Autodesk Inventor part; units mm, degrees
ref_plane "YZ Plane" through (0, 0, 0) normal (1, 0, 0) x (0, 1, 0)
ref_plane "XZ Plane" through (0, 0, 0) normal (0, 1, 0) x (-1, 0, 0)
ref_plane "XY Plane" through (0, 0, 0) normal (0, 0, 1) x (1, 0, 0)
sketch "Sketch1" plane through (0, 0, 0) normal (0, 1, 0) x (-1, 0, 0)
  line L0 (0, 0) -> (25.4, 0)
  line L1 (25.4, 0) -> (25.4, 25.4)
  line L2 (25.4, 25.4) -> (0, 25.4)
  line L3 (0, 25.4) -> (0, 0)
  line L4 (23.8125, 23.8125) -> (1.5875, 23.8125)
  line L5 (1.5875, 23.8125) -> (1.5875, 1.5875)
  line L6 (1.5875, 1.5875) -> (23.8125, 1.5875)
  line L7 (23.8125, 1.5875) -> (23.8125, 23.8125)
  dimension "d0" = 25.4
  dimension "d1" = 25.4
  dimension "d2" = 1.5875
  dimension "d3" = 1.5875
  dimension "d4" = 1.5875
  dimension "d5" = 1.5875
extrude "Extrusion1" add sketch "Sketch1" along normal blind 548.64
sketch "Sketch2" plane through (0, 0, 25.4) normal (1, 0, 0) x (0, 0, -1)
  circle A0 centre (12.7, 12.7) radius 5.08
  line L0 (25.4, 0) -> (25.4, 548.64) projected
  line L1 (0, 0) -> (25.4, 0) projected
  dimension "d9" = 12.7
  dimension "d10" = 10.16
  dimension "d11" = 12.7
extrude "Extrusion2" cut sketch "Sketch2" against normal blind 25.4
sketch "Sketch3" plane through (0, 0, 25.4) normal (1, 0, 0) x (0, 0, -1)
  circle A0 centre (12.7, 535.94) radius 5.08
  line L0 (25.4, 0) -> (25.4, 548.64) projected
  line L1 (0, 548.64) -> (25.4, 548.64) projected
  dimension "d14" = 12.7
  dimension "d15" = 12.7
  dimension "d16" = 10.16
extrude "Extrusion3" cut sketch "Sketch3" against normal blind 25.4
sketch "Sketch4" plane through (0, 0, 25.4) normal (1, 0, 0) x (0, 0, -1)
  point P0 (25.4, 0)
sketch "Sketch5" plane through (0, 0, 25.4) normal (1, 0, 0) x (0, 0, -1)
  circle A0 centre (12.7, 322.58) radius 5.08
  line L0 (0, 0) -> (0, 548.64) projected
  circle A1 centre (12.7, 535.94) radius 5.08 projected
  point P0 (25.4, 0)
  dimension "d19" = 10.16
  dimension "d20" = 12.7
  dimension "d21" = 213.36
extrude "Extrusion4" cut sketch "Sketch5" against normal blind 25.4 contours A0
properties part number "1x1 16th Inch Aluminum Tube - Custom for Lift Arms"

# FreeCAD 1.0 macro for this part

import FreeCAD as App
import Part
import Sketcher
Q = App.Units.Quantity


def add_polygon(sketch, points):
    """Adds a closed chain of lines whose ends are joined by coincident constraints."""
    first, n = sketch.GeometryCount, len(points)
    for a, b in zip(points, points[1:] + points[:1]):
        sketch.addGeometry(Part.LineSegment(App.Vector(*a, 0), App.Vector(*b, 0)), False)
    for i in range(n):
        sketch.addConstraint(Sketcher.Constraint("Coincident", first + i, 2, first + (i + 1) % n, 1))

doc = App.newDocument("Part")
body = doc.addObject("PartDesign::Body", "Body")

# Sketch on XZ plane
sketch1 = body.newObject("Sketcher::SketchObject", "Sketch")
sketch1.AttachmentSupport = (doc.getObject("XZ_Plane"), [""])
sketch1.MapMode = "FlatFace"
add_polygon(sketch1, [(0, 25), (0, 0), (-25, 0), (-25, 25)])  # lines 0-3
add_polygon(sketch1, [(-2, 24), (-24, 24), (-24, 2), (-2, 2)])  # lines 4-7
sketch1.addConstraint(Sketcher.Constraint("Vertical", 0))
sketch1.addConstraint(Sketcher.Constraint("Horizontal", 1))
sketch1.addConstraint(Sketcher.Constraint("Vertical", 2))
sketch1.addConstraint(Sketcher.Constraint("Horizontal", 3))
sketch1.addConstraint(Sketcher.Constraint("Horizontal", 4))
sketch1.addConstraint(Sketcher.Constraint("Vertical", 5))
sketch1.addConstraint(Sketcher.Constraint("Horizontal", 6))
sketch1.addConstraint(Sketcher.Constraint("Vertical", 7))
sketch1.addConstraint(Sketcher.Constraint("Coincident", 0, 2, -1, 1))
sketch1.addConstraint(Sketcher.Constraint("Equal", 3, 0))
sketch1.addConstraint(Sketcher.Constraint("Equal", 6, 5))
sketch1.addConstraint(Sketcher.Constraint("DistanceX", 1, 2, 1, 1, Q("1 in")))
sketch1.addConstraint(Sketcher.Constraint("DistanceY", -1, 1, 5, 2, Q("0.0625 in")))
sketch1.addConstraint(Sketcher.Constraint("DistanceX", 6, 2, -1, 1, Q("0.0625 in")))
sketch1.addConstraint(Sketcher.Constraint("DistanceX", 2, 2, 4, 2, Q("0.0625 in")))
pad1 = body.newObject("PartDesign::Pad", "Pad")
pad1.Profile = sketch1
pad1.Length = Q("21.6 in")
pad1.Reversed = True

# Sketch on YZ plane
sketch2 = body.newObject("Sketcher::SketchObject", "Sketch001")
sketch2.AttachmentSupport = (doc.getObject("YZ_Plane"), [""])
sketch2.MapMode = "FlatFace"
sketch2.addGeometry(Part.Circle(App.Vector(13, 13, 0), App.Vector(0, 0, 1), 5), False)
sketch2.addConstraint(Sketcher.Constraint("Diameter", 0, Q("0.4 in")))
sketch2.addConstraint(Sketcher.Constraint("DistanceX", -1, 1, 0, 3, Q("0.5 in")))
sketch2.addConstraint(Sketcher.Constraint("DistanceY", -1, 1, 0, 3, Q("0.5 in")))
pocket1 = body.newObject("PartDesign::Pocket", "Pocket")
pocket1.Profile = sketch2
pocket1.Length = Q("1 in")

# Sketch on YZ plane
sketch3 = body.newObject("Sketcher::SketchObject", "Sketch002")
sketch3.AttachmentSupport = (doc.getObject("YZ_Plane"), [""])
sketch3.MapMode = "FlatFace"
sketch3.addGeometry(Part.Circle(App.Vector(536, 13, 0), App.Vector(0, 0, 1), 5), False)
sketch3.addConstraint(Sketcher.Constraint("Diameter", 0, Q("0.4 in")))
sketch3.addConstraint(Sketcher.Constraint("DistanceY", -1, 1, 0, 3, Q("0.5 in")))
sketch3.addConstraint(Sketcher.Constraint("DistanceX", -1, 1, 0, 3, Q("21.1 in")))
pocket2 = body.newObject("PartDesign::Pocket", "Pocket001")
pocket2.Profile = sketch3
pocket2.Length = Q("1 in")

# Sketch on YZ plane
sketch4 = body.newObject("Sketcher::SketchObject", "Sketch003")
sketch4.AttachmentSupport = (doc.getObject("YZ_Plane"), [""])
sketch4.MapMode = "FlatFace"
sketch4.addGeometry(Part.Circle(App.Vector(323, 13, 0), App.Vector(0, 0, 1), 5), False)
sketch4.addConstraint(Sketcher.Constraint("Diameter", 0, Q("0.4 in")))
sketch4.addConstraint(Sketcher.Constraint("DistanceY", -1, 1, 0, 3, Q("0.5 in")))
sketch4.addConstraint(Sketcher.Constraint("DistanceX", -1, 1, 0, 3, Q("12.7 in")))
pocket3 = body.newObject("PartDesign::Pocket", "Pocket002")
pocket3.Profile = sketch4
pocket3.Length = Q("1 in")

doc.recompute()
